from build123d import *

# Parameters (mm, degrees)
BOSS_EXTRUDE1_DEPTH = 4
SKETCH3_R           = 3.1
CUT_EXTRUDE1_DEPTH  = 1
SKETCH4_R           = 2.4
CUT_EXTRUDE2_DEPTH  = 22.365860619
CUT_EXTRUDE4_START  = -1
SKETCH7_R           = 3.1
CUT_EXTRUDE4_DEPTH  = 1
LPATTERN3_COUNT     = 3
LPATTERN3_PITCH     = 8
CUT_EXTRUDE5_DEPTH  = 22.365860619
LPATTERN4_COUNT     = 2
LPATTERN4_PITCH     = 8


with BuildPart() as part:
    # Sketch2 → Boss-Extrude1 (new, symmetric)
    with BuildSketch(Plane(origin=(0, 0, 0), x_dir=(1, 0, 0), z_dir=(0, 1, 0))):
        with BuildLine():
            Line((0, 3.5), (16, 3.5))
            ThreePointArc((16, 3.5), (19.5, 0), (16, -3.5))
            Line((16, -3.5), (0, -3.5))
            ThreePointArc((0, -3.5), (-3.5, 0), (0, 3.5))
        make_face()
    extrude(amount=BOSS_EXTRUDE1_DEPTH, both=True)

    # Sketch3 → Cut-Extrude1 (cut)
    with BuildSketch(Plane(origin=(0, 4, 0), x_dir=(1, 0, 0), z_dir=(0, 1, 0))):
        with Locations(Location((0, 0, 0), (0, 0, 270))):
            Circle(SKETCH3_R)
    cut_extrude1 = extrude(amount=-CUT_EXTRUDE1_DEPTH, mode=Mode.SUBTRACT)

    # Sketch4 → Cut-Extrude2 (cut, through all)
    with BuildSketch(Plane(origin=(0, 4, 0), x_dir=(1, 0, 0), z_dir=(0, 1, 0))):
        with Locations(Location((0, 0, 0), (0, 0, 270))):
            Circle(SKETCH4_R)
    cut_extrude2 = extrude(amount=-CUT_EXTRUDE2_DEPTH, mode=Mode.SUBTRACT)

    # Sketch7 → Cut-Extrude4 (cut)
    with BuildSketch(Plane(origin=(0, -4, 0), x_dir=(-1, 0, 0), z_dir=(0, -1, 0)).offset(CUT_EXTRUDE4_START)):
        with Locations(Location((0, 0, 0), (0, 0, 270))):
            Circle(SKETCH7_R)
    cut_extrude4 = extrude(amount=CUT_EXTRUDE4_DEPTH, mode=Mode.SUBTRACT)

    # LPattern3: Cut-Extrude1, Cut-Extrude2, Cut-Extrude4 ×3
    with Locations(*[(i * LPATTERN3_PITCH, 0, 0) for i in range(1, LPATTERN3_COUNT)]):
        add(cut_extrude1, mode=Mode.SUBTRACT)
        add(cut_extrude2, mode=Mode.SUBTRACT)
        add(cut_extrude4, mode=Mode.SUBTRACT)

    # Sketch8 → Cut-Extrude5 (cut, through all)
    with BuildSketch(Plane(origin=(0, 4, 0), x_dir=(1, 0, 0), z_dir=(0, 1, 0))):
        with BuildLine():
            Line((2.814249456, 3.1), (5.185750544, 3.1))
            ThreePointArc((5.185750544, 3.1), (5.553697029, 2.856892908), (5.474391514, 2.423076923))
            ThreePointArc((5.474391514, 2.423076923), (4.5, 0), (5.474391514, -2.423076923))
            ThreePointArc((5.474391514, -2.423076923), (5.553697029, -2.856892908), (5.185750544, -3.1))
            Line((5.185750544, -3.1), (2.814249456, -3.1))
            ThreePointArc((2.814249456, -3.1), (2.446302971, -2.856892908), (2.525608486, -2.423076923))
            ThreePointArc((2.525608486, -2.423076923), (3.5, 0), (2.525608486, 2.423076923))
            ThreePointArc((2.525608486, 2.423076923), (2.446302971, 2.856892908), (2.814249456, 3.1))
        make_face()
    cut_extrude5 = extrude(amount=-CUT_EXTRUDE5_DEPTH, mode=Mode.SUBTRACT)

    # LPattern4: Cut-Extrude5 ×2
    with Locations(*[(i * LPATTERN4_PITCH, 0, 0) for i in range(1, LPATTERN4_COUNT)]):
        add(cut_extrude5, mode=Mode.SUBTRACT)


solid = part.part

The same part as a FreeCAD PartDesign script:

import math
import FreeCAD as App
import Part
import Sketcher
from FreeCAD import Vector

doc = App.newDocument("Part")
body = doc.addObject("PartDesign::Body", "Body")

# Sketch on XZ plane
sketch1 = doc.addObject("Sketcher::SketchObject", "Sketch")
body.addObject(sketch1)
sketch1.AttachmentSupport = (doc.XZ_Plane, [""])
sketch1.MapMode = "FlatFace"
sketch1.addGeometry(Part.LineSegment(Vector(16, -3.5, 0), Vector(0, -3.5, 0)), False)
sketch1.addGeometry(Part.ArcOfCircle(Part.Circle(Vector(0, 0, 0), Vector(0, 0, 1), 3.5), math.radians(90), math.radians(270)), False)
sketch1.addGeometry(Part.LineSegment(Vector(0, 3.5, 0), Vector(16, 3.5, 0)), False)
sketch1.addGeometry(Part.ArcOfCircle(Part.Circle(Vector(16, 0, 0), Vector(0, 0, 1), 3.5), math.radians(-90), math.radians(90)), False)
sketch1.addConstraint(Sketcher.Constraint("Tangent", 0, 2, 1, 2))
sketch1.addConstraint(Sketcher.Constraint("Tangent", 1, 1, 2, 1))
sketch1.addConstraint(Sketcher.Constraint("Tangent", 2, 2, 3, 2))
sketch1.addConstraint(Sketcher.Constraint("Tangent", 3, 1, 0, 1))
sketch1.addConstraint(Sketcher.Constraint("Horizontal", 0))
sketch1.addConstraint(Sketcher.Constraint("Horizontal", 2))
sketch1.addConstraint(Sketcher.Constraint("Coincident", 1, 3, -1, 1))
sketch1.addConstraint(Sketcher.Constraint("Radius", 1, 3.5))
sketch1.addConstraint(Sketcher.Constraint("DistanceX", 0, 2, 0, 1, 16.0))
pad1 = doc.addObject("PartDesign::Pad", "Pad")
body.addObject(pad1)
pad1.Profile = sketch1
pad1.Length = 8
pad1.Midplane = True

# Sketch on XZ plane
sketch2 = doc.addObject("Sketcher::SketchObject", "Sketch001")
body.addObject(sketch2)
sketch2.AttachmentSupport = (doc.XZ_Plane, [""])
sketch2.MapMode = "FlatFace"
sketch2.AttachmentOffset = App.Placement(Vector(0, 0, -4), App.Rotation())
sketch2.addGeometry(Part.Circle(Vector(0, 0, 0), Vector(0, 0, 1), 3.1), False)
sketch2.addConstraint(Sketcher.Constraint("Coincident", 0, 3, -1, 1))
sketch2.addConstraint(Sketcher.Constraint("Diameter", 0, 6.2))
pocket1 = doc.addObject("PartDesign::Pocket", "Pocket")
body.addObject(pocket1)
pocket1.Profile = sketch2
pocket1.Length = 1
pocket1.Reversed = True

# Sketch on XZ plane
sketch3 = doc.addObject("Sketcher::SketchObject", "Sketch002")
body.addObject(sketch3)
sketch3.AttachmentSupport = (doc.XZ_Plane, [""])
sketch3.MapMode = "FlatFace"
sketch3.AttachmentOffset = App.Placement(Vector(0, 0, -4), App.Rotation())
sketch3.addGeometry(Part.Circle(Vector(0, 0, 0), Vector(0, 0, 1), 2.4), False)
sketch3.addConstraint(Sketcher.Constraint("Coincident", 0, 3, -1, 1))
sketch3.addConstraint(Sketcher.Constraint("Diameter", 0, 4.8))
pocket2 = doc.addObject("PartDesign::Pocket", "Pocket001")
body.addObject(pocket2)
pocket2.Profile = sketch3
pocket2.Type = "ThroughAll"
pocket2.Reversed = True

# Sketch on XZ plane
sketch4 = doc.addObject("Sketcher::SketchObject", "Sketch003")
body.addObject(sketch4)
sketch4.AttachmentSupport = (doc.XZ_Plane, [""])
sketch4.MapMode = "FlatFace"
sketch4.AttachmentOffset = App.Placement(Vector(0, 0, 3), App.Rotation())
sketch4.addGeometry(Part.Circle(Vector(0, 0, 0), Vector(0, 0, 1), 3.1), False)
sketch4.addConstraint(Sketcher.Constraint("Coincident", 0, 3, -1, 1))
sketch4.addConstraint(Sketcher.Constraint("Diameter", 0, 6.2))
pocket3 = doc.addObject("PartDesign::Pocket", "Pocket002")
body.addObject(pocket3)
pocket3.Profile = sketch4
pocket3.Length = 1
pocket3.Reversed = True
doc.recompute()

linearpattern = doc.addObject("PartDesign::LinearPattern", "LinearPattern")
body.addObject(linearpattern)
linearpattern.Originals = [pocket1, pocket2, pocket3]
linearpattern.Direction = (doc.X_Axis, [""])
linearpattern.Mode = "offset"
linearpattern.Offset = 8
linearpattern.Occurrences = 3
body.Tip = linearpattern

# Sketch on XZ plane
sketch5 = doc.addObject("Sketcher::SketchObject", "Sketch004")
body.addObject(sketch5)
sketch5.AttachmentSupport = (doc.XZ_Plane, [""])
sketch5.MapMode = "FlatFace"
sketch5.AttachmentOffset = App.Placement(Vector(0, 0, -4), App.Rotation())
sketch5.addGeometry(Part.LineSegment(Vector(5.19, -3.1, 0), Vector(2.81, -3.1, 0)), False)
sketch5.addGeometry(Part.ArcOfCircle(Part.Circle(Vector(2.81, -2.7, 0), Vector(0, 0, 1), 0.4), math.radians(136), math.radians(270)), False)
sketch5.addGeometry(Part.ArcOfCircle(Part.Circle(Vector(0, 0, 0), Vector(0, 0, 1), 3.5), math.radians(-44), math.radians(44)), False)
sketch5.addGeometry(Part.ArcOfCircle(Part.Circle(Vector(2.81, 2.7, 0), Vector(0, 0, 1), 0.4), math.radians(90), math.radians(224)), False)
sketch5.addGeometry(Part.LineSegment(Vector(2.81, 3.1, 0), Vector(5.19, 3.1, 0)), False)
sketch5.addGeometry(Part.ArcOfCircle(Part.Circle(Vector(5.19, 2.7, 0), Vector(0, 0, 1), 0.4), math.radians(-44), math.radians(90)), False)
sketch5.addGeometry(Part.ArcOfCircle(Part.Circle(Vector(8, 0, 0), Vector(0, 0, 1), 3.5), math.radians(136), math.radians(224)), False)
sketch5.addGeometry(Part.ArcOfCircle(Part.Circle(Vector(5.19, -2.7, 0), Vector(0, 0, 1), 0.4), math.radians(-90), math.radians(44)), False)
sketch5.addConstraint(Sketcher.Constraint("Tangent", 0, 2, 1, 2))
sketch5.addConstraint(Sketcher.Constraint("Tangent", 1, 1, 2, 1))
sketch5.addConstraint(Sketcher.Constraint("Tangent", 2, 2, 3, 2))
sketch5.addConstraint(Sketcher.Constraint("Tangent", 3, 1, 4, 1))
sketch5.addConstraint(Sketcher.Constraint("Tangent", 4, 2, 5, 2))
sketch5.addConstraint(Sketcher.Constraint("Tangent", 5, 1, 6, 1))
sketch5.addConstraint(Sketcher.Constraint("Tangent", 6, 2, 7, 2))
sketch5.addConstraint(Sketcher.Constraint("Tangent", 7, 1, 0, 1))
sketch5.addConstraint(Sketcher.Constraint("Horizontal", 0))
sketch5.addConstraint(Sketcher.Constraint("Horizontal", 4))
sketch5.addConstraint(Sketcher.Constraint("Coincident", 2, 3, -1, 1))
sketch5.addConstraint(Sketcher.Constraint("Equal", 1, 3))
sketch5.addConstraint(Sketcher.Constraint("Equal", 3, 5))
sketch5.addConstraint(Sketcher.Constraint("Equal", 2, 6))
sketch5.addConstraint(Sketcher.Constraint("Equal", 5, 7))
sketch5.addConstraint(Sketcher.Constraint("Symmetric", 5, 3, 7, 3, -1))
sketch5.addConstraint(Sketcher.Constraint("Radius", 1, 0.4))
sketch5.addConstraint(Sketcher.Constraint("Radius", 2, 3.5))
sketch5.addConstraint(Sketcher.Constraint("DistanceX", -1, 1, 6, 3, 8.0))
sketch5.addConstraint(Sketcher.Constraint("DistanceY", 1, 3, -1, 1, 2.7))
pocket4 = doc.addObject("PartDesign::Pocket", "Pocket003")
body.addObject(pocket4)
pocket4.Profile = sketch5
pocket4.Type = "ThroughAll"
pocket4.Reversed = True
doc.recompute()

linearpattern2 = doc.addObject("PartDesign::LinearPattern", "LinearPattern001")
body.addObject(linearpattern2)
linearpattern2.Originals = [pocket4]
linearpattern2.Direction = (doc.X_Axis, [""])
linearpattern2.Mode = "offset"
linearpattern2.Offset = 8
linearpattern2.Occurrences = 2
body.Tip = linearpattern2

doc.recompute()
